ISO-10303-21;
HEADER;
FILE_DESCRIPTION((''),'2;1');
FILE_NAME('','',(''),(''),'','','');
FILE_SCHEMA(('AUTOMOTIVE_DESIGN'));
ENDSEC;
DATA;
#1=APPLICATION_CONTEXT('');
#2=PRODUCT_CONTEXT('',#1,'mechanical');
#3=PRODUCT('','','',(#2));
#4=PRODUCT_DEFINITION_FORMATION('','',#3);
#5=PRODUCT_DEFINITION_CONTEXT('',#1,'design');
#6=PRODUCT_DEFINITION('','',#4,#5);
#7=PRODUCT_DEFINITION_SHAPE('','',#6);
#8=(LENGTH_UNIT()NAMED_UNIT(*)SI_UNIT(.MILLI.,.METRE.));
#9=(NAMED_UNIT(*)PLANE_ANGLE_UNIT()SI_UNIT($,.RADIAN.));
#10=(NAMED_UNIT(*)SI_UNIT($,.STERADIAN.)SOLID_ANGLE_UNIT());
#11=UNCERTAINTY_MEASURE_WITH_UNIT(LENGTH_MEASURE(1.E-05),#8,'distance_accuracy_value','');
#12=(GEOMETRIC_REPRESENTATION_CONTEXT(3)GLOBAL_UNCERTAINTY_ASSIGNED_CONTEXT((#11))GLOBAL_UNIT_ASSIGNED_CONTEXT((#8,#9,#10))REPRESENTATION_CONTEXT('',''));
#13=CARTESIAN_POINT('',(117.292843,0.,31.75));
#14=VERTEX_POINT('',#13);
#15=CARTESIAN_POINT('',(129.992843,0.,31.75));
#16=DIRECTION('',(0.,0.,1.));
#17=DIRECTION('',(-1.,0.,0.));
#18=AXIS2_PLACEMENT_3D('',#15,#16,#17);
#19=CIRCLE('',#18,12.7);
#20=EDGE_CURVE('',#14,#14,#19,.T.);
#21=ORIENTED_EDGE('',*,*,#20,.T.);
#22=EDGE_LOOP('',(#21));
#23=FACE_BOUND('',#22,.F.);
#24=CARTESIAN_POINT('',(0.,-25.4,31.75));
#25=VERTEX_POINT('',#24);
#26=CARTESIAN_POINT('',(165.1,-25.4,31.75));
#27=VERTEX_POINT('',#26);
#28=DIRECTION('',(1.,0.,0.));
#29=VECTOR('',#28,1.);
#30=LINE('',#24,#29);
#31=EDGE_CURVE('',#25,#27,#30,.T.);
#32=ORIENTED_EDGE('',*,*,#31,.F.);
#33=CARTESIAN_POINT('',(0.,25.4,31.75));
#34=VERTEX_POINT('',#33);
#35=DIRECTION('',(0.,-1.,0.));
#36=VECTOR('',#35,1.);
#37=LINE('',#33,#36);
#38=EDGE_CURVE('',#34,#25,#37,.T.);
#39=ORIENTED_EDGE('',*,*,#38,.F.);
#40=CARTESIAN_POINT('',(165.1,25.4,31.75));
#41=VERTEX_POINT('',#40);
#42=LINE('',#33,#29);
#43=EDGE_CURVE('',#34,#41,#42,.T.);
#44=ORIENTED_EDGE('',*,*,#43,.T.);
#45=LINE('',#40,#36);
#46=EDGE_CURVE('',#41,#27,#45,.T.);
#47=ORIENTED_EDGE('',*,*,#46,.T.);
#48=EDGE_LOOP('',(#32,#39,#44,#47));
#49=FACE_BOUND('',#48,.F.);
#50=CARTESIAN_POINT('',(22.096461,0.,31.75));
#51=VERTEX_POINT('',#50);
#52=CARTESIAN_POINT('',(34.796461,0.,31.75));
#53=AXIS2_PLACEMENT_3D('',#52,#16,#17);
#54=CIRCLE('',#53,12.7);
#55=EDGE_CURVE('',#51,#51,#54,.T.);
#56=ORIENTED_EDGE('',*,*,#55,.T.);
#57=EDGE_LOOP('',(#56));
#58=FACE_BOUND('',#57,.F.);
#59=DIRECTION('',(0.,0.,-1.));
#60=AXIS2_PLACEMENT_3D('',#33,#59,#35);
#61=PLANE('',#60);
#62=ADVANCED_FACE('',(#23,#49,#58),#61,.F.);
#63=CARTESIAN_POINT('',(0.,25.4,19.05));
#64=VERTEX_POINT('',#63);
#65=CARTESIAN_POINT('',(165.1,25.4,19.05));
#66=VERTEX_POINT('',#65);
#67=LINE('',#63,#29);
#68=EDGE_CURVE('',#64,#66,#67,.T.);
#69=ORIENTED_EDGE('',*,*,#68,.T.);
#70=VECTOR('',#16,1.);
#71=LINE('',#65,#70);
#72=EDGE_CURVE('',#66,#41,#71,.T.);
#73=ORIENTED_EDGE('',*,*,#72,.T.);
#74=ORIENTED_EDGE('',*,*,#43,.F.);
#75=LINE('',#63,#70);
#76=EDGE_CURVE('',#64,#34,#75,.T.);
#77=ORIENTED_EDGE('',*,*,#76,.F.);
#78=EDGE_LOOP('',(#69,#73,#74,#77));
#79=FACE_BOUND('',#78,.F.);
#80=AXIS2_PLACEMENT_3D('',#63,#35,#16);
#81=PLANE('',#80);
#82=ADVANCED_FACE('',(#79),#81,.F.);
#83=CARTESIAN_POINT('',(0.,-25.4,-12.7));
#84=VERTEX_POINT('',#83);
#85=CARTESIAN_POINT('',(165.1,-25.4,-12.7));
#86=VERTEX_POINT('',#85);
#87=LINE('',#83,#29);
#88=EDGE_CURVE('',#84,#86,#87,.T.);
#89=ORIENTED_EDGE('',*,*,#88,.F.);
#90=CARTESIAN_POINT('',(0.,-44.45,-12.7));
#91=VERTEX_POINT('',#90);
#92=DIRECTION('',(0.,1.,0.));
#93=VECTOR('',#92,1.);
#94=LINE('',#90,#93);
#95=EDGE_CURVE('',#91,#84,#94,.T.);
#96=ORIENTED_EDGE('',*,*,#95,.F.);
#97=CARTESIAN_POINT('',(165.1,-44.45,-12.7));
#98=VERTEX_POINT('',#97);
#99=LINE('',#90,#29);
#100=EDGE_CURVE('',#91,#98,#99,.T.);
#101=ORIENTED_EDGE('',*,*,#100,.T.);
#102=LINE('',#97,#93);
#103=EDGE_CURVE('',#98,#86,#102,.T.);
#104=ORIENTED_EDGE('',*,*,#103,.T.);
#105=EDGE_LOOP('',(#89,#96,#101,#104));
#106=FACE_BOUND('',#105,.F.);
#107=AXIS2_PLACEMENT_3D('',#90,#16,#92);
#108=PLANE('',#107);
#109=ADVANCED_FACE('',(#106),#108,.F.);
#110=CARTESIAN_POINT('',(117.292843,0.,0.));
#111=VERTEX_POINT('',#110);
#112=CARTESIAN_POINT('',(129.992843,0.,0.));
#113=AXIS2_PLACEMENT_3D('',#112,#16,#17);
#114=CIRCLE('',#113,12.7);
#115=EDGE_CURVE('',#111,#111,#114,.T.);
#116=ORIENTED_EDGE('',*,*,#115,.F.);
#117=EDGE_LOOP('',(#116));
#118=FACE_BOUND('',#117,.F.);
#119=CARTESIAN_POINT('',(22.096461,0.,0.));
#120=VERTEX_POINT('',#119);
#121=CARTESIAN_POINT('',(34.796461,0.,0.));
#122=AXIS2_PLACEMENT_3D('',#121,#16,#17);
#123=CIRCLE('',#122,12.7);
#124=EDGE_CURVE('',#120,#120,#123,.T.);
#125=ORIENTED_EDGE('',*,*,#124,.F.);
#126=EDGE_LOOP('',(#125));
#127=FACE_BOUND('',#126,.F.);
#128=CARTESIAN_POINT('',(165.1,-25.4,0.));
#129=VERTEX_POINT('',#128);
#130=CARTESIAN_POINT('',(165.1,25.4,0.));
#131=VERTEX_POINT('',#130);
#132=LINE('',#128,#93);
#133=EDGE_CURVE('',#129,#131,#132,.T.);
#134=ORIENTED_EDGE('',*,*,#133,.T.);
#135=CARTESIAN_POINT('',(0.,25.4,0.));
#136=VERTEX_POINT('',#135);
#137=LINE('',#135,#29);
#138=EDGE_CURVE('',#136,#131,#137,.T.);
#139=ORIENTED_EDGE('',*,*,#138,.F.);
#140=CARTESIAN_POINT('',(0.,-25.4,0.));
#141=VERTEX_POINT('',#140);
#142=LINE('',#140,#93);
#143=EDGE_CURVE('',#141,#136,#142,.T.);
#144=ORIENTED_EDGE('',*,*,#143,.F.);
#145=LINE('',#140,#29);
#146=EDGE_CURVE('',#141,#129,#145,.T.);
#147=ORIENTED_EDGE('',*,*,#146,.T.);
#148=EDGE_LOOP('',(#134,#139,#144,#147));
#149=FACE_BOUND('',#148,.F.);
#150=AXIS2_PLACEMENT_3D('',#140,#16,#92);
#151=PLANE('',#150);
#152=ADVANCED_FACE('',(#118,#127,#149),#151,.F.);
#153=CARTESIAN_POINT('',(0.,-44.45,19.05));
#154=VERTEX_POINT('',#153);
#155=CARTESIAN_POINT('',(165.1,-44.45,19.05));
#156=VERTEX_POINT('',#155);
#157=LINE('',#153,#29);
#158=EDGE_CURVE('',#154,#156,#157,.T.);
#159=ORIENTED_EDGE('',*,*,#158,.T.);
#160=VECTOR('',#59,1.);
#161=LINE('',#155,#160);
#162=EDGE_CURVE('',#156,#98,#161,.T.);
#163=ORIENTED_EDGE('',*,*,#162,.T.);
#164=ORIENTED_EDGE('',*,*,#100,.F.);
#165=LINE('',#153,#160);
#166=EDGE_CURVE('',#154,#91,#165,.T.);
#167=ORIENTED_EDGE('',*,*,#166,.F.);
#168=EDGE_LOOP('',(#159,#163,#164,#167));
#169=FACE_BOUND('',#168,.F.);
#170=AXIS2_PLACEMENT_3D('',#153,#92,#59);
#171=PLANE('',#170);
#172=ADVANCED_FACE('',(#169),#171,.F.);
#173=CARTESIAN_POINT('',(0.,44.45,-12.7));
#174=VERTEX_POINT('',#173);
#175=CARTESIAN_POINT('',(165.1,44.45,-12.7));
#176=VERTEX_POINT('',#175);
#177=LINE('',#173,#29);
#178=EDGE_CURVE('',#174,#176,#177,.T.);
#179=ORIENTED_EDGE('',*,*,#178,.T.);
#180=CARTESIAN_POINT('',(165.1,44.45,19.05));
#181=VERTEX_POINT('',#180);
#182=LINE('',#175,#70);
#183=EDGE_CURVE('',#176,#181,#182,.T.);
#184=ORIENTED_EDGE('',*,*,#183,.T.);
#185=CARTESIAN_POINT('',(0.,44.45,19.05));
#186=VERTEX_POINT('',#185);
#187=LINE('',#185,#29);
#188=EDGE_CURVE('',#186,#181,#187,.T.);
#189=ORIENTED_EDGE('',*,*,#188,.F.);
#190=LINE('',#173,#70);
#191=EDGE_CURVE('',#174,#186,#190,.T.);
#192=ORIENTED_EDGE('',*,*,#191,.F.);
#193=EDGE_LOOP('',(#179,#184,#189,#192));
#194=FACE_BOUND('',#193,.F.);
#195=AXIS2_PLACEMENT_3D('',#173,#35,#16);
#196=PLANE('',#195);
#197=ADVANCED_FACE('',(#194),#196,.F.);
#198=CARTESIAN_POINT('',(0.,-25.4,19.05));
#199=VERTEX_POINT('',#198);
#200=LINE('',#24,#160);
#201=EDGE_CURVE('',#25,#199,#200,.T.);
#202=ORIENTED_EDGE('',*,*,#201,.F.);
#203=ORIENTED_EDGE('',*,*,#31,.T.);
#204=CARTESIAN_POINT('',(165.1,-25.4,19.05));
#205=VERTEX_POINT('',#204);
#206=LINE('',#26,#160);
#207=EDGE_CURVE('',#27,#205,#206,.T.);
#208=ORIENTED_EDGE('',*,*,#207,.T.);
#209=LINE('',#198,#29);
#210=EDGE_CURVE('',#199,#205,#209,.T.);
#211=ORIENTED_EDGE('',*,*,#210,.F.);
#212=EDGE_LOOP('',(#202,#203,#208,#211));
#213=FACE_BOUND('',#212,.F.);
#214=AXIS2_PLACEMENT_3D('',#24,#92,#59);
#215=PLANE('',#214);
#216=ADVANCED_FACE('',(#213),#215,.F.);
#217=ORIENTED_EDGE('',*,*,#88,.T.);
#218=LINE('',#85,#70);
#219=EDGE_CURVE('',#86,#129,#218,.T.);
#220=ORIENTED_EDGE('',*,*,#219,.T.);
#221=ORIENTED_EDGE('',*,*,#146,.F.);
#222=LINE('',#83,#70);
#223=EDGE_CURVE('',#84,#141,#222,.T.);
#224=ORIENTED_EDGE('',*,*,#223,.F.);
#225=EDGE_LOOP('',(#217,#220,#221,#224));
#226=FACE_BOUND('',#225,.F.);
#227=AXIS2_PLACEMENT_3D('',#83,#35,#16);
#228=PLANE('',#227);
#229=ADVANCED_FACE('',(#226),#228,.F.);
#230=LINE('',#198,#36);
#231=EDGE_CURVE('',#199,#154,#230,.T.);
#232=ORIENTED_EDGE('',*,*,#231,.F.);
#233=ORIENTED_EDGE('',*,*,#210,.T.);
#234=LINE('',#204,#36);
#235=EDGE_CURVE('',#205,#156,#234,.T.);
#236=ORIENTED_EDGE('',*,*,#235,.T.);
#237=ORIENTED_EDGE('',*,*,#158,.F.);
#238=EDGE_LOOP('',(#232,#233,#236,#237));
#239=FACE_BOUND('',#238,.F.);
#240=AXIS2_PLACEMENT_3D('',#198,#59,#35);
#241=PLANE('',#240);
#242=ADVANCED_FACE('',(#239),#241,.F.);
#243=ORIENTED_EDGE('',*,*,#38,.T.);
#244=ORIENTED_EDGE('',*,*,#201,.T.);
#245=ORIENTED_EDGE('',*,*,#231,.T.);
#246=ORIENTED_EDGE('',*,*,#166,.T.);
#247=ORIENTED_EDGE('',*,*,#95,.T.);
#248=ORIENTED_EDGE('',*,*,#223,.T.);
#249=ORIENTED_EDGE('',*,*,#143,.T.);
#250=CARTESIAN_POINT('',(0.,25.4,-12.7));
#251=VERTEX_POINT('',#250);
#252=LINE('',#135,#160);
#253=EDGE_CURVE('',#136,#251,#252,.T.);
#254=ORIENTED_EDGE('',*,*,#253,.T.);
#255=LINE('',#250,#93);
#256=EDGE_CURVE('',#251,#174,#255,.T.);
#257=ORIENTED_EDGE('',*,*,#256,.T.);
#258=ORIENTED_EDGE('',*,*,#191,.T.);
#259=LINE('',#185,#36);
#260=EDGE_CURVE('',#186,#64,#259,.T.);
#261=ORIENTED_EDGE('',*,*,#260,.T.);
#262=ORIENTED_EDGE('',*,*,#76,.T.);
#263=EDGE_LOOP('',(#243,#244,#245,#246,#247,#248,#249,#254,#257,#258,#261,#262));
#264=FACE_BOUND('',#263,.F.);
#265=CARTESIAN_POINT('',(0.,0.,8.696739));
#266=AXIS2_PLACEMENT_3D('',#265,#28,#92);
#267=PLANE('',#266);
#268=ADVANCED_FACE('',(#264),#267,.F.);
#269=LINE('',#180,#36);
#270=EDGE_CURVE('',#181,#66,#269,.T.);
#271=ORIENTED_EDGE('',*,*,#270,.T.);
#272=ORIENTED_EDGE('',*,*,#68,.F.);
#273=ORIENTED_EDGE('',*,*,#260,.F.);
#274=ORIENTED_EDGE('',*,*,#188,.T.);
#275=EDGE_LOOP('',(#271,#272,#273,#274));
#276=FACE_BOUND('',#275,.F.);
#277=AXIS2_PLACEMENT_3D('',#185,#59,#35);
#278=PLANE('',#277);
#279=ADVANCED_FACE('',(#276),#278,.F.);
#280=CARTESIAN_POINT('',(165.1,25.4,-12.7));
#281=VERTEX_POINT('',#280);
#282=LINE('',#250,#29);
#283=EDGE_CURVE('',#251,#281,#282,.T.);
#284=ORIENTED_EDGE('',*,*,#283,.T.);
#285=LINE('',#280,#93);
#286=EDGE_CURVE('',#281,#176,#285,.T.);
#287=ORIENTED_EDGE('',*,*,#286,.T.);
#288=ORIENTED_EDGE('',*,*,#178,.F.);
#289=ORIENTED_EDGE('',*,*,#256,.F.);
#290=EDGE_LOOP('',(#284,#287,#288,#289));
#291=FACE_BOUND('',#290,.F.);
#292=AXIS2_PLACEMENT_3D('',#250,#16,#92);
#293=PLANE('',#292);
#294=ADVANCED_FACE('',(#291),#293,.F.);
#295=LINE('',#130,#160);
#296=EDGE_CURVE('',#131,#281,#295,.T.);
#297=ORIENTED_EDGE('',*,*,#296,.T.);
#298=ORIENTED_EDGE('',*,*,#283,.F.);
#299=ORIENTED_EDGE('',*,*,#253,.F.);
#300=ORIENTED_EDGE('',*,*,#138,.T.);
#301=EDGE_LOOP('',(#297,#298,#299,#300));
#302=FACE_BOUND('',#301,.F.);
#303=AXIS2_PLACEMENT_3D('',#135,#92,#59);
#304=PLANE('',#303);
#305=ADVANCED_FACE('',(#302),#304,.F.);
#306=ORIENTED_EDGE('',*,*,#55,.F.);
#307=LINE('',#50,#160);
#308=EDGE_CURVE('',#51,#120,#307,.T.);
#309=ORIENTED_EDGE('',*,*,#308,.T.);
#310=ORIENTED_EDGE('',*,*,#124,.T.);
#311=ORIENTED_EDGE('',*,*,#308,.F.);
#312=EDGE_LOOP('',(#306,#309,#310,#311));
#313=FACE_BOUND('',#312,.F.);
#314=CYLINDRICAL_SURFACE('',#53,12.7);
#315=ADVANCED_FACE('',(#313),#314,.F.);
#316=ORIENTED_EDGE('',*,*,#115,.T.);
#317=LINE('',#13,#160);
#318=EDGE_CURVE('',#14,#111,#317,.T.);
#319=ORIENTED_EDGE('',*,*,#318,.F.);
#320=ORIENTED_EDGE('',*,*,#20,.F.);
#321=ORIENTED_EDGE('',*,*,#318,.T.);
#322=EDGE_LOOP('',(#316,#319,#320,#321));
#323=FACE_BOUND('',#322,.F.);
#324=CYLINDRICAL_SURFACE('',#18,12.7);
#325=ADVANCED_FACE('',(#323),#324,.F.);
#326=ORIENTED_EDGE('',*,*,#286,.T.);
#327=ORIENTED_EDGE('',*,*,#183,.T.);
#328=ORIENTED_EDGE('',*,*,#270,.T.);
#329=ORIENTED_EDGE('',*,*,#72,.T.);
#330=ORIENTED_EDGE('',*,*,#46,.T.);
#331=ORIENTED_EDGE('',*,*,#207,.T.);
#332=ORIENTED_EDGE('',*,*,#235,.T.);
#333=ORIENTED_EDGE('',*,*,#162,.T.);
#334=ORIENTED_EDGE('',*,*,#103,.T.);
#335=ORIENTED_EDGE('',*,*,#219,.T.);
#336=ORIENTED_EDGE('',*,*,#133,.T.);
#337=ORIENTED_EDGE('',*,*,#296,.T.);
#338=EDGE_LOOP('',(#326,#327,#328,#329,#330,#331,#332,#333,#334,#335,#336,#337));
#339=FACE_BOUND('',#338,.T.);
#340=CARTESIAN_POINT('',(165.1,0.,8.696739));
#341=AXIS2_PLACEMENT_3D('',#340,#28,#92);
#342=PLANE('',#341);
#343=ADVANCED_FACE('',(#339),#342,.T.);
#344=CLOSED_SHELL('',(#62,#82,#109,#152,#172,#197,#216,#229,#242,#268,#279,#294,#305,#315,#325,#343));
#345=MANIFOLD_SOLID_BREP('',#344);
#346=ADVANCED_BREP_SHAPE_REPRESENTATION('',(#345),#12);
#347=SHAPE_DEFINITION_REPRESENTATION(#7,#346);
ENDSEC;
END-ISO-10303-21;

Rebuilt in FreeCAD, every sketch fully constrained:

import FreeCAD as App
import Part
import Sketcher
Q = App.Units.Quantity


def add_polygon(sketch, points):
    """Adds a closed chain of lines whose ends are joined by coincident constraints."""
    first, n = sketch.GeometryCount, len(points)
    for a, b in zip(points, points[1:] + points[:1]):
        sketch.addGeometry(Part.LineSegment(App.Vector(*a, 0), App.Vector(*b, 0)), False)
    for i in range(n):
        sketch.addConstraint(Sketcher.Constraint("Coincident", first + i, 2, first + (i + 1) % n, 1))

doc = App.newDocument("Part")
body = doc.addObject("PartDesign::Body", "Body")

sketch1 = body.newObject("Sketcher::SketchObject", "Sketch")
sketch1.AttachmentSupport = (doc.getObject("YZ_Plane"), [""])
sketch1.MapMode = "FlatFace"
add_polygon(sketch1, [(-25, 0), (25, 0), (25, -13), (44, -13), (44, 19), (25, 19), (25, 32), (-25, 32), (-25, 19), (-44, 19), (-44, -13), (-25, -13)])
sketch1.addConstraint([
    Sketcher.Constraint("Horizontal", 0),
    Sketcher.Constraint("Vertical", 1),
    Sketcher.Constraint("Horizontal", 2),
    Sketcher.Constraint("Vertical", 3),
    Sketcher.Constraint("Horizontal", 4),
    Sketcher.Constraint("Vertical", 5),
    Sketcher.Constraint("Horizontal", 6),
    Sketcher.Constraint("Vertical", 7),
    Sketcher.Constraint("Horizontal", 8),
    Sketcher.Constraint("Vertical", 9),
    Sketcher.Constraint("Horizontal", 10),
    Sketcher.Constraint("Vertical", 11),
    Sketcher.Constraint("Symmetric", 0, 2, 11, 2, -1, 1),
    Sketcher.Constraint("Symmetric", 4, 2, 7, 2, -2),
    Sketcher.Constraint("Symmetric", 2, 2, 9, 2, -2),
    Sketcher.Constraint("Vertical", 1, 2, 4, 2),
    Sketcher.Constraint("Equal", 1, 5),
    Sketcher.Constraint("DistanceX", 0, 1, 0, 2, Q("2 in")),
    Sketcher.Constraint("DistanceY", 1, 2, 1, 1, Q("0.5 in")),
    Sketcher.Constraint("DistanceX", 2, 1, 2, 2, Q("0.75 in")),
    Sketcher.Constraint("DistanceY", 3, 1, 3, 2, Q("1.25 in")),
])
pad1 = body.newObject("PartDesign::Pad", "Pad")
pad1.Profile = sketch1
pad1.Length = Q("6.5 in")

sketch2 = body.newObject("Sketcher::SketchObject", "Sketch001")
sketch2.AttachmentSupport = (doc.getObject("XY_Plane"), [""])
sketch2.MapMode = "FlatFace"
sketch2.AttachmentOffset = App.Placement(App.Vector(0, 0, 1.25 * 25.4), App.Rotation())
sketch2.addGeometry([
    Part.Circle(App.Vector(35, 0, 0), App.Vector(0, 0, 1), 13),
    Part.Circle(App.Vector(130, 0, 0), App.Vector(0, 0, 1), 13),
], False)
sketch2.addConstraint([
    Sketcher.Constraint("Equal", 0, 1),
    Sketcher.Constraint("PointOnObject", 0, 3, -1),
    Sketcher.Constraint("PointOnObject", 1, 3, -1),
    Sketcher.Constraint("Diameter", 0, Q("1 in")),
    Sketcher.Constraint("DistanceX", -1, 1, 0, 3, Q("34.796461 mm")),
    Sketcher.Constraint("DistanceX", 0, 3, 1, 3, Q("95.196381 mm")),
])
pocket1 = body.newObject("PartDesign::Pocket", "Pocket")
pocket1.Profile = sketch2
pocket1.Type = "ThroughAll"

doc.recompute()
